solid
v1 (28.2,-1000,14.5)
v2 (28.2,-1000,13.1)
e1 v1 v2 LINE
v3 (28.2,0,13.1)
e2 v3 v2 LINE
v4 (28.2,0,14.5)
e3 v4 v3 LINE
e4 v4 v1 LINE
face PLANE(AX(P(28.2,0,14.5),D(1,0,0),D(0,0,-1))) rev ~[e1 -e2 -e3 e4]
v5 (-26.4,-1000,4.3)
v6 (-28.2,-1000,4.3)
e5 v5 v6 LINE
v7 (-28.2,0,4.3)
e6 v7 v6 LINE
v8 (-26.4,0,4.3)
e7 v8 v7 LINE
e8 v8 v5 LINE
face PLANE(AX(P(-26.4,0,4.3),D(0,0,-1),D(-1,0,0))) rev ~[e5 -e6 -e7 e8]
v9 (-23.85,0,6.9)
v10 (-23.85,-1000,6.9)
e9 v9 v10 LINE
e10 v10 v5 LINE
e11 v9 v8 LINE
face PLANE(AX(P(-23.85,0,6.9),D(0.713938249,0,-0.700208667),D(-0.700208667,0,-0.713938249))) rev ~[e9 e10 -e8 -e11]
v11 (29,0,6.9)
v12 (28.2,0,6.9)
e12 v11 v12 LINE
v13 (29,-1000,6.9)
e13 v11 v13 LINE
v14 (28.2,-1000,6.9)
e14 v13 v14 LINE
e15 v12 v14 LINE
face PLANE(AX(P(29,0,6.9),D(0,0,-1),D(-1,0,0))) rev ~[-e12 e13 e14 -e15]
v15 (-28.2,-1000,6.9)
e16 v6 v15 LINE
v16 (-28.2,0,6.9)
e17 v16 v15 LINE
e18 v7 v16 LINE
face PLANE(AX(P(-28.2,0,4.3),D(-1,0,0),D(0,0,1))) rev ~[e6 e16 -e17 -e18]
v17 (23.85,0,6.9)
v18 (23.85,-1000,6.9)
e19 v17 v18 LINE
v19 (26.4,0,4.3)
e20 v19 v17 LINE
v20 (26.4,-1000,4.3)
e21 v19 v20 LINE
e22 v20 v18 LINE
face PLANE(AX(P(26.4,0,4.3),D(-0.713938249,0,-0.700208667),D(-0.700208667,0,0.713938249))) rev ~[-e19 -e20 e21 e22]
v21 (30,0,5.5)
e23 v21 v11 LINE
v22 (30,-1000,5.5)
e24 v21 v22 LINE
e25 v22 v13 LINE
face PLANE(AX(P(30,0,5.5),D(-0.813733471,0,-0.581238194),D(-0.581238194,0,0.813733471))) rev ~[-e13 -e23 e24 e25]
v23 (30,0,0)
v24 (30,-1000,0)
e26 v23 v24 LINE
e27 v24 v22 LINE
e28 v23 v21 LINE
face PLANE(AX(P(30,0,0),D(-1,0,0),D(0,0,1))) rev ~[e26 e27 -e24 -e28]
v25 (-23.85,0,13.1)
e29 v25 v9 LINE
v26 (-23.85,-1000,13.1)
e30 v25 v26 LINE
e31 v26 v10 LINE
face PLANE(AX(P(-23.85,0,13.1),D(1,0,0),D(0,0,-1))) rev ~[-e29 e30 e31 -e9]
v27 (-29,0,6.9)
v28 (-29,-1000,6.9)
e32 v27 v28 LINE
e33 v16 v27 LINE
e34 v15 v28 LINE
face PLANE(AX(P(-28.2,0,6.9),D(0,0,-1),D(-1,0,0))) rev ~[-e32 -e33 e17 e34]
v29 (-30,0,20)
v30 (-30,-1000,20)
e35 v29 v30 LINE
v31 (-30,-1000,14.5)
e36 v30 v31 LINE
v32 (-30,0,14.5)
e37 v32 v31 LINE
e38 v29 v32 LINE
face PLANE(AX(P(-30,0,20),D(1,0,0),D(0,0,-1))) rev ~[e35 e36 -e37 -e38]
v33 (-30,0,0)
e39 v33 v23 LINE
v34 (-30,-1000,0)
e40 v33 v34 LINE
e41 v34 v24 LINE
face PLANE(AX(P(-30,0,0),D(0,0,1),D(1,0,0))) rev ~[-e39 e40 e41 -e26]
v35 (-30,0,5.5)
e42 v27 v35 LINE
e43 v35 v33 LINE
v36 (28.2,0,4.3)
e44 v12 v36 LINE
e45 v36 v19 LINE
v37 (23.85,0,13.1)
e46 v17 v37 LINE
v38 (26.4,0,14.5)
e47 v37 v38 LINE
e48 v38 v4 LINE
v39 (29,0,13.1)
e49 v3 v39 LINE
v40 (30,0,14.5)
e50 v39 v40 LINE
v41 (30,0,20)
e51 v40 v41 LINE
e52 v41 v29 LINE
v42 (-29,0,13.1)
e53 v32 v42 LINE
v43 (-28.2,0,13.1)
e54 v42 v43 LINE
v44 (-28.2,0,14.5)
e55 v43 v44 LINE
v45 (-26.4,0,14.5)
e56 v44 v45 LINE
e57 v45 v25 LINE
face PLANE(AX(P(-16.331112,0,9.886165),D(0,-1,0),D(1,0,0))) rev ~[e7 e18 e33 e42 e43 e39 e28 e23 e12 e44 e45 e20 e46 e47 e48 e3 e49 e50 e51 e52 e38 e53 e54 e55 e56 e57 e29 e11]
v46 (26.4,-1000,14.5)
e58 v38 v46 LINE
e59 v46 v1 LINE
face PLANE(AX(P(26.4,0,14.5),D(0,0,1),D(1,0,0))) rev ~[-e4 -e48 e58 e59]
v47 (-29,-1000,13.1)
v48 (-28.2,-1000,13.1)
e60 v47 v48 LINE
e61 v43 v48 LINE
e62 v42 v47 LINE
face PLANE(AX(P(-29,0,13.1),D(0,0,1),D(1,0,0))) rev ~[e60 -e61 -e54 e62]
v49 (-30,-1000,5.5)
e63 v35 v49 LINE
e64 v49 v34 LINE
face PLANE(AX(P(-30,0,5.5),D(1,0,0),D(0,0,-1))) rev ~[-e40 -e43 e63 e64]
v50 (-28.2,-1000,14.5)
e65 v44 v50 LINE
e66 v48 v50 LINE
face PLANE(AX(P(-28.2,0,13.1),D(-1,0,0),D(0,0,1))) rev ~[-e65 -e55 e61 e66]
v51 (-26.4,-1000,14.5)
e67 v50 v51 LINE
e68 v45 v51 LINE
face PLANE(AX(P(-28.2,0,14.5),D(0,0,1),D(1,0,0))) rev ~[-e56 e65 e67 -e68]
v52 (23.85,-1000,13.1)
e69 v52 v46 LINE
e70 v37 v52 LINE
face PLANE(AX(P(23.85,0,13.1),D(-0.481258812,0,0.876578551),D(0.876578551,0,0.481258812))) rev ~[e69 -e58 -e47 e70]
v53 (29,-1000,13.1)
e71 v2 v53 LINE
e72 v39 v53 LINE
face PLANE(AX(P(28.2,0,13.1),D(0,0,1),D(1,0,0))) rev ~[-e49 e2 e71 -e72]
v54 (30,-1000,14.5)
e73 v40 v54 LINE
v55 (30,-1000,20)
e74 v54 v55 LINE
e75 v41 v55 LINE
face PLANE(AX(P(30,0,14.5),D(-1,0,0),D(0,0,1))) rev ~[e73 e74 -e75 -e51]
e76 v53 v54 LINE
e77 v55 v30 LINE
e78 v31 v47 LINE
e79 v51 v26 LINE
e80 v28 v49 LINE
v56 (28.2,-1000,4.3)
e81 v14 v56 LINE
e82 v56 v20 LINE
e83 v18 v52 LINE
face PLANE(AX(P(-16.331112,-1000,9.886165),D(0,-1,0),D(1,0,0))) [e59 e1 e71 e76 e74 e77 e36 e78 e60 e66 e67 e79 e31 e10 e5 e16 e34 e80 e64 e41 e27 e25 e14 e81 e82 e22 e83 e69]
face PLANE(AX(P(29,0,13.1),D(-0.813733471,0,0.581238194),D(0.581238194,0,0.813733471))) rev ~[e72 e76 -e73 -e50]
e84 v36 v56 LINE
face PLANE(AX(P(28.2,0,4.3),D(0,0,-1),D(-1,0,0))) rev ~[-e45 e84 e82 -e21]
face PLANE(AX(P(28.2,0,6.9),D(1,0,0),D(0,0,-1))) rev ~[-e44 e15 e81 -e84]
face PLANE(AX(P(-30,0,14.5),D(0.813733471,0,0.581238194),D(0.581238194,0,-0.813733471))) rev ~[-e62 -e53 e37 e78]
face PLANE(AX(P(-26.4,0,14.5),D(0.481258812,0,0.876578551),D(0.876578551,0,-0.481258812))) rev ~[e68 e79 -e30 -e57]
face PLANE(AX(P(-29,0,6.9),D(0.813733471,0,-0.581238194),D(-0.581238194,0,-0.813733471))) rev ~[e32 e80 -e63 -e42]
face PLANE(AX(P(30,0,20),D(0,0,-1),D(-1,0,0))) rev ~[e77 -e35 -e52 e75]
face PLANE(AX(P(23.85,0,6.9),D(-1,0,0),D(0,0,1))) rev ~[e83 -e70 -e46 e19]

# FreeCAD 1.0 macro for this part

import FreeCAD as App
import Part
import Sketcher

V = App.Vector
Q = App.Units.Quantity

doc = App.newDocument("Part")
body = doc.addObject("PartDesign::Body", "Body")

# Sketch on XZ plane
sketch1 = doc.addObject("Sketcher::SketchObject", "Sketch")
body.addObject(sketch1)
sketch1.AttachmentSupport = (doc.XZ_Plane, [""])
sketch1.MapMode = "FlatFace"
sketch1.addGeometry([
    Part.LineSegment(V(-30, 5.5, 0), V(-30, 0, 0)),  # 0
    Part.LineSegment(V(-30, 0, 0), V(30, 0, 0)),  # 1
    Part.LineSegment(V(30, 0, 0), V(30, 5.5, 0)),  # 2
    Part.LineSegment(V(30, 5.5, 0), V(29, 6.9, 0)),  # 3
    Part.LineSegment(V(29, 6.9, 0), V(28.2, 6.9, 0)),  # 4
    Part.LineSegment(V(28.2, 6.9, 0), V(28.2, 4.3, 0)),  # 5
    Part.LineSegment(V(28.2, 4.3, 0), V(26.4, 4.3, 0)),  # 6
    Part.LineSegment(V(26.4, 4.3, 0), V(23.9, 6.9, 0)),  # 7
    Part.LineSegment(V(23.9, 6.9, 0), V(23.9, 13.1, 0)),  # 8
    Part.LineSegment(V(23.9, 13.1, 0), V(26.4, 14.5, 0)),  # 9
    Part.LineSegment(V(26.4, 14.5, 0), V(28.2, 14.5, 0)),  # 10
    Part.LineSegment(V(28.2, 14.5, 0), V(28.2, 13.1, 0)),  # 11
    Part.LineSegment(V(28.2, 13.1, 0), V(29, 13.1, 0)),  # 12
    Part.LineSegment(V(29, 13.1, 0), V(30, 14.5, 0)),  # 13
    Part.LineSegment(V(30, 14.5, 0), V(30, 20, 0)),  # 14
    Part.LineSegment(V(30, 20, 0), V(-30, 20, 0)),  # 15
    Part.LineSegment(V(-30, 20, 0), V(-30, 14.5, 0)),  # 16
    Part.LineSegment(V(-30, 14.5, 0), V(-29, 13.1, 0)),  # 17
    Part.LineSegment(V(-29, 13.1, 0), V(-28.2, 13.1, 0)),  # 18
    Part.LineSegment(V(-28.2, 13.1, 0), V(-28.2, 14.5, 0)),  # 19
    Part.LineSegment(V(-28.2, 14.5, 0), V(-26.4, 14.5, 0)),  # 20
    Part.LineSegment(V(-26.4, 14.5, 0), V(-23.9, 13.1, 0)),  # 21
    Part.LineSegment(V(-23.9, 13.1, 0), V(-23.9, 6.9, 0)),  # 22
    Part.LineSegment(V(-23.9, 6.9, 0), V(-26.4, 4.3, 0)),  # 23
    Part.LineSegment(V(-26.4, 4.3, 0), V(-28.2, 4.3, 0)),  # 24
    Part.LineSegment(V(-28.2, 4.3, 0), V(-28.2, 6.9, 0)),  # 25
    Part.LineSegment(V(-28.2, 6.9, 0), V(-29, 6.9, 0)),  # 26
    Part.LineSegment(V(-29, 6.9, 0), V(-30, 5.5, 0)),  # 27
], False)
sketch1.addConstraint([
    Sketcher.Constraint("Coincident", 0, 2, 1, 1),
    Sketcher.Constraint("Coincident", 1, 2, 2, 1),
    Sketcher.Constraint("Coincident", 2, 2, 3, 1),
    Sketcher.Constraint("Coincident", 3, 2, 4, 1),
    Sketcher.Constraint("Coincident", 4, 2, 5, 1),
    Sketcher.Constraint("Coincident", 5, 2, 6, 1),
    Sketcher.Constraint("Coincident", 6, 2, 7, 1),
    Sketcher.Constraint("Coincident", 7, 2, 8, 1),
    Sketcher.Constraint("Coincident", 8, 2, 9, 1),
    Sketcher.Constraint("Coincident", 9, 2, 10, 1),
    Sketcher.Constraint("Coincident", 10, 2, 11, 1),
    Sketcher.Constraint("Coincident", 11, 2, 12, 1),
    Sketcher.Constraint("Coincident", 12, 2, 13, 1),
    Sketcher.Constraint("Coincident", 13, 2, 14, 1),
    Sketcher.Constraint("Coincident", 14, 2, 15, 1),
    Sketcher.Constraint("Coincident", 15, 2, 16, 1),
    Sketcher.Constraint("Coincident", 16, 2, 17, 1),
    Sketcher.Constraint("Coincident", 17, 2, 18, 1),
    Sketcher.Constraint("Coincident", 18, 2, 19, 1),
    Sketcher.Constraint("Coincident", 19, 2, 20, 1),
    Sketcher.Constraint("Coincident", 20, 2, 21, 1),
    Sketcher.Constraint("Coincident", 21, 2, 22, 1),
    Sketcher.Constraint("Coincident", 22, 2, 23, 1),
    Sketcher.Constraint("Coincident", 23, 2, 24, 1),
    Sketcher.Constraint("Coincident", 24, 2, 25, 1),
    Sketcher.Constraint("Coincident", 25, 2, 26, 1),
    Sketcher.Constraint("Coincident", 26, 2, 27, 1),
    Sketcher.Constraint("Coincident", 27, 2, 0, 1),
    Sketcher.Constraint("Vertical", 0),
    Sketcher.Constraint("Horizontal", 1),
    Sketcher.Constraint("Vertical", 2),
    Sketcher.Constraint("Horizontal", 4),
    Sketcher.Constraint("Vertical", 5),
    Sketcher.Constraint("Horizontal", 6),
    Sketcher.Constraint("Vertical", 8),
    Sketcher.Constraint("Horizontal", 10),
    Sketcher.Constraint("Vertical", 11),
    Sketcher.Constraint("Horizontal", 12),
    Sketcher.Constraint("Vertical", 14),
    Sketcher.Constraint("Horizontal", 15),
    Sketcher.Constraint("Vertical", 16),
    Sketcher.Constraint("Horizontal", 18),
    Sketcher.Constraint("Vertical", 19),
    Sketcher.Constraint("Horizontal", 20),
    Sketcher.Constraint("Vertical", 22),
    Sketcher.Constraint("Horizontal", 24),
    Sketcher.Constraint("Vertical", 25),
    Sketcher.Constraint("Horizontal", 26),
    Sketcher.Constraint("Symmetric", 0, 2, 1, 2, -1, 1),
    Sketcher.Constraint("Symmetric", 13, 2, 16, 2, -2),
    Sketcher.Constraint("Symmetric", 12, 2, 17, 2, -2),
    Sketcher.Constraint("Symmetric", 10, 2, 19, 2, -2),
    Sketcher.Constraint("Symmetric", 8, 2, 21, 2, -2),
    Sketcher.Constraint("Symmetric", 6, 2, 23, 2, -2),
    Sketcher.Constraint("Symmetric", 4, 2, 25, 2, -2),
    Sketcher.Constraint("Parallel", 3, 17),
    Sketcher.Constraint("Parallel", 13, 27),
    Sketcher.Constraint("Horizontal", 4, 2, 7, 2),
    Sketcher.Constraint("Horizontal", 8, 2, 11, 2),
    Sketcher.Constraint("Horizontal", 10, 2, 13, 2),
    Sketcher.Constraint("Horizontal", 7, 2, 22, 2),
    Sketcher.Constraint("Horizontal", 2, 2, 27, 2),
    Sketcher.Constraint("Vertical", 6, 2, 9, 2),
    Sketcher.Constraint("Vertical", 5, 2, 10, 2),
    Sketcher.Constraint("Vertical", 3, 2, 12, 2),
    Sketcher.Constraint("Vertical", 2, 2, 13, 2),
    Sketcher.Constraint("Vertical", 20, 2, 23, 2),
    Sketcher.Constraint("Equal", 2, 14),
    Sketcher.Constraint("DistanceX", 1, 1, 1, 2, Q("60 mm")),
    Sketcher.Constraint("DistanceX", 4, 2, 4, 1, Q("0.8 mm")),
    Sketcher.Constraint("DistanceX", 6, 2, 6, 1, Q("1.8 mm")),
    Sketcher.Constraint("DistanceY", 0, 2, 0, 1, Q("5.5 mm")),
    Sketcher.Constraint("DistanceY", 5, 2, 5, 1, Q("2.6 mm")),
    Sketcher.Constraint("DistanceY", 8, 1, 8, 2, Q("6.2 mm")),
    Sketcher.Constraint("DistanceY", 11, 2, 11, 1, Q("1.4 mm")),
    Sketcher.Constraint("DistanceX", -1, 1, 3, 2, Q("29 mm")),
    Sketcher.Constraint("DistanceX", -1, 1, 7, 2, Q("23.85 mm")),
])
pad1 = doc.addObject("PartDesign::Pad", "Pad")
body.addObject(pad1)
pad1.Profile = sketch1
pad1.Length = 1000

doc.recompute()
